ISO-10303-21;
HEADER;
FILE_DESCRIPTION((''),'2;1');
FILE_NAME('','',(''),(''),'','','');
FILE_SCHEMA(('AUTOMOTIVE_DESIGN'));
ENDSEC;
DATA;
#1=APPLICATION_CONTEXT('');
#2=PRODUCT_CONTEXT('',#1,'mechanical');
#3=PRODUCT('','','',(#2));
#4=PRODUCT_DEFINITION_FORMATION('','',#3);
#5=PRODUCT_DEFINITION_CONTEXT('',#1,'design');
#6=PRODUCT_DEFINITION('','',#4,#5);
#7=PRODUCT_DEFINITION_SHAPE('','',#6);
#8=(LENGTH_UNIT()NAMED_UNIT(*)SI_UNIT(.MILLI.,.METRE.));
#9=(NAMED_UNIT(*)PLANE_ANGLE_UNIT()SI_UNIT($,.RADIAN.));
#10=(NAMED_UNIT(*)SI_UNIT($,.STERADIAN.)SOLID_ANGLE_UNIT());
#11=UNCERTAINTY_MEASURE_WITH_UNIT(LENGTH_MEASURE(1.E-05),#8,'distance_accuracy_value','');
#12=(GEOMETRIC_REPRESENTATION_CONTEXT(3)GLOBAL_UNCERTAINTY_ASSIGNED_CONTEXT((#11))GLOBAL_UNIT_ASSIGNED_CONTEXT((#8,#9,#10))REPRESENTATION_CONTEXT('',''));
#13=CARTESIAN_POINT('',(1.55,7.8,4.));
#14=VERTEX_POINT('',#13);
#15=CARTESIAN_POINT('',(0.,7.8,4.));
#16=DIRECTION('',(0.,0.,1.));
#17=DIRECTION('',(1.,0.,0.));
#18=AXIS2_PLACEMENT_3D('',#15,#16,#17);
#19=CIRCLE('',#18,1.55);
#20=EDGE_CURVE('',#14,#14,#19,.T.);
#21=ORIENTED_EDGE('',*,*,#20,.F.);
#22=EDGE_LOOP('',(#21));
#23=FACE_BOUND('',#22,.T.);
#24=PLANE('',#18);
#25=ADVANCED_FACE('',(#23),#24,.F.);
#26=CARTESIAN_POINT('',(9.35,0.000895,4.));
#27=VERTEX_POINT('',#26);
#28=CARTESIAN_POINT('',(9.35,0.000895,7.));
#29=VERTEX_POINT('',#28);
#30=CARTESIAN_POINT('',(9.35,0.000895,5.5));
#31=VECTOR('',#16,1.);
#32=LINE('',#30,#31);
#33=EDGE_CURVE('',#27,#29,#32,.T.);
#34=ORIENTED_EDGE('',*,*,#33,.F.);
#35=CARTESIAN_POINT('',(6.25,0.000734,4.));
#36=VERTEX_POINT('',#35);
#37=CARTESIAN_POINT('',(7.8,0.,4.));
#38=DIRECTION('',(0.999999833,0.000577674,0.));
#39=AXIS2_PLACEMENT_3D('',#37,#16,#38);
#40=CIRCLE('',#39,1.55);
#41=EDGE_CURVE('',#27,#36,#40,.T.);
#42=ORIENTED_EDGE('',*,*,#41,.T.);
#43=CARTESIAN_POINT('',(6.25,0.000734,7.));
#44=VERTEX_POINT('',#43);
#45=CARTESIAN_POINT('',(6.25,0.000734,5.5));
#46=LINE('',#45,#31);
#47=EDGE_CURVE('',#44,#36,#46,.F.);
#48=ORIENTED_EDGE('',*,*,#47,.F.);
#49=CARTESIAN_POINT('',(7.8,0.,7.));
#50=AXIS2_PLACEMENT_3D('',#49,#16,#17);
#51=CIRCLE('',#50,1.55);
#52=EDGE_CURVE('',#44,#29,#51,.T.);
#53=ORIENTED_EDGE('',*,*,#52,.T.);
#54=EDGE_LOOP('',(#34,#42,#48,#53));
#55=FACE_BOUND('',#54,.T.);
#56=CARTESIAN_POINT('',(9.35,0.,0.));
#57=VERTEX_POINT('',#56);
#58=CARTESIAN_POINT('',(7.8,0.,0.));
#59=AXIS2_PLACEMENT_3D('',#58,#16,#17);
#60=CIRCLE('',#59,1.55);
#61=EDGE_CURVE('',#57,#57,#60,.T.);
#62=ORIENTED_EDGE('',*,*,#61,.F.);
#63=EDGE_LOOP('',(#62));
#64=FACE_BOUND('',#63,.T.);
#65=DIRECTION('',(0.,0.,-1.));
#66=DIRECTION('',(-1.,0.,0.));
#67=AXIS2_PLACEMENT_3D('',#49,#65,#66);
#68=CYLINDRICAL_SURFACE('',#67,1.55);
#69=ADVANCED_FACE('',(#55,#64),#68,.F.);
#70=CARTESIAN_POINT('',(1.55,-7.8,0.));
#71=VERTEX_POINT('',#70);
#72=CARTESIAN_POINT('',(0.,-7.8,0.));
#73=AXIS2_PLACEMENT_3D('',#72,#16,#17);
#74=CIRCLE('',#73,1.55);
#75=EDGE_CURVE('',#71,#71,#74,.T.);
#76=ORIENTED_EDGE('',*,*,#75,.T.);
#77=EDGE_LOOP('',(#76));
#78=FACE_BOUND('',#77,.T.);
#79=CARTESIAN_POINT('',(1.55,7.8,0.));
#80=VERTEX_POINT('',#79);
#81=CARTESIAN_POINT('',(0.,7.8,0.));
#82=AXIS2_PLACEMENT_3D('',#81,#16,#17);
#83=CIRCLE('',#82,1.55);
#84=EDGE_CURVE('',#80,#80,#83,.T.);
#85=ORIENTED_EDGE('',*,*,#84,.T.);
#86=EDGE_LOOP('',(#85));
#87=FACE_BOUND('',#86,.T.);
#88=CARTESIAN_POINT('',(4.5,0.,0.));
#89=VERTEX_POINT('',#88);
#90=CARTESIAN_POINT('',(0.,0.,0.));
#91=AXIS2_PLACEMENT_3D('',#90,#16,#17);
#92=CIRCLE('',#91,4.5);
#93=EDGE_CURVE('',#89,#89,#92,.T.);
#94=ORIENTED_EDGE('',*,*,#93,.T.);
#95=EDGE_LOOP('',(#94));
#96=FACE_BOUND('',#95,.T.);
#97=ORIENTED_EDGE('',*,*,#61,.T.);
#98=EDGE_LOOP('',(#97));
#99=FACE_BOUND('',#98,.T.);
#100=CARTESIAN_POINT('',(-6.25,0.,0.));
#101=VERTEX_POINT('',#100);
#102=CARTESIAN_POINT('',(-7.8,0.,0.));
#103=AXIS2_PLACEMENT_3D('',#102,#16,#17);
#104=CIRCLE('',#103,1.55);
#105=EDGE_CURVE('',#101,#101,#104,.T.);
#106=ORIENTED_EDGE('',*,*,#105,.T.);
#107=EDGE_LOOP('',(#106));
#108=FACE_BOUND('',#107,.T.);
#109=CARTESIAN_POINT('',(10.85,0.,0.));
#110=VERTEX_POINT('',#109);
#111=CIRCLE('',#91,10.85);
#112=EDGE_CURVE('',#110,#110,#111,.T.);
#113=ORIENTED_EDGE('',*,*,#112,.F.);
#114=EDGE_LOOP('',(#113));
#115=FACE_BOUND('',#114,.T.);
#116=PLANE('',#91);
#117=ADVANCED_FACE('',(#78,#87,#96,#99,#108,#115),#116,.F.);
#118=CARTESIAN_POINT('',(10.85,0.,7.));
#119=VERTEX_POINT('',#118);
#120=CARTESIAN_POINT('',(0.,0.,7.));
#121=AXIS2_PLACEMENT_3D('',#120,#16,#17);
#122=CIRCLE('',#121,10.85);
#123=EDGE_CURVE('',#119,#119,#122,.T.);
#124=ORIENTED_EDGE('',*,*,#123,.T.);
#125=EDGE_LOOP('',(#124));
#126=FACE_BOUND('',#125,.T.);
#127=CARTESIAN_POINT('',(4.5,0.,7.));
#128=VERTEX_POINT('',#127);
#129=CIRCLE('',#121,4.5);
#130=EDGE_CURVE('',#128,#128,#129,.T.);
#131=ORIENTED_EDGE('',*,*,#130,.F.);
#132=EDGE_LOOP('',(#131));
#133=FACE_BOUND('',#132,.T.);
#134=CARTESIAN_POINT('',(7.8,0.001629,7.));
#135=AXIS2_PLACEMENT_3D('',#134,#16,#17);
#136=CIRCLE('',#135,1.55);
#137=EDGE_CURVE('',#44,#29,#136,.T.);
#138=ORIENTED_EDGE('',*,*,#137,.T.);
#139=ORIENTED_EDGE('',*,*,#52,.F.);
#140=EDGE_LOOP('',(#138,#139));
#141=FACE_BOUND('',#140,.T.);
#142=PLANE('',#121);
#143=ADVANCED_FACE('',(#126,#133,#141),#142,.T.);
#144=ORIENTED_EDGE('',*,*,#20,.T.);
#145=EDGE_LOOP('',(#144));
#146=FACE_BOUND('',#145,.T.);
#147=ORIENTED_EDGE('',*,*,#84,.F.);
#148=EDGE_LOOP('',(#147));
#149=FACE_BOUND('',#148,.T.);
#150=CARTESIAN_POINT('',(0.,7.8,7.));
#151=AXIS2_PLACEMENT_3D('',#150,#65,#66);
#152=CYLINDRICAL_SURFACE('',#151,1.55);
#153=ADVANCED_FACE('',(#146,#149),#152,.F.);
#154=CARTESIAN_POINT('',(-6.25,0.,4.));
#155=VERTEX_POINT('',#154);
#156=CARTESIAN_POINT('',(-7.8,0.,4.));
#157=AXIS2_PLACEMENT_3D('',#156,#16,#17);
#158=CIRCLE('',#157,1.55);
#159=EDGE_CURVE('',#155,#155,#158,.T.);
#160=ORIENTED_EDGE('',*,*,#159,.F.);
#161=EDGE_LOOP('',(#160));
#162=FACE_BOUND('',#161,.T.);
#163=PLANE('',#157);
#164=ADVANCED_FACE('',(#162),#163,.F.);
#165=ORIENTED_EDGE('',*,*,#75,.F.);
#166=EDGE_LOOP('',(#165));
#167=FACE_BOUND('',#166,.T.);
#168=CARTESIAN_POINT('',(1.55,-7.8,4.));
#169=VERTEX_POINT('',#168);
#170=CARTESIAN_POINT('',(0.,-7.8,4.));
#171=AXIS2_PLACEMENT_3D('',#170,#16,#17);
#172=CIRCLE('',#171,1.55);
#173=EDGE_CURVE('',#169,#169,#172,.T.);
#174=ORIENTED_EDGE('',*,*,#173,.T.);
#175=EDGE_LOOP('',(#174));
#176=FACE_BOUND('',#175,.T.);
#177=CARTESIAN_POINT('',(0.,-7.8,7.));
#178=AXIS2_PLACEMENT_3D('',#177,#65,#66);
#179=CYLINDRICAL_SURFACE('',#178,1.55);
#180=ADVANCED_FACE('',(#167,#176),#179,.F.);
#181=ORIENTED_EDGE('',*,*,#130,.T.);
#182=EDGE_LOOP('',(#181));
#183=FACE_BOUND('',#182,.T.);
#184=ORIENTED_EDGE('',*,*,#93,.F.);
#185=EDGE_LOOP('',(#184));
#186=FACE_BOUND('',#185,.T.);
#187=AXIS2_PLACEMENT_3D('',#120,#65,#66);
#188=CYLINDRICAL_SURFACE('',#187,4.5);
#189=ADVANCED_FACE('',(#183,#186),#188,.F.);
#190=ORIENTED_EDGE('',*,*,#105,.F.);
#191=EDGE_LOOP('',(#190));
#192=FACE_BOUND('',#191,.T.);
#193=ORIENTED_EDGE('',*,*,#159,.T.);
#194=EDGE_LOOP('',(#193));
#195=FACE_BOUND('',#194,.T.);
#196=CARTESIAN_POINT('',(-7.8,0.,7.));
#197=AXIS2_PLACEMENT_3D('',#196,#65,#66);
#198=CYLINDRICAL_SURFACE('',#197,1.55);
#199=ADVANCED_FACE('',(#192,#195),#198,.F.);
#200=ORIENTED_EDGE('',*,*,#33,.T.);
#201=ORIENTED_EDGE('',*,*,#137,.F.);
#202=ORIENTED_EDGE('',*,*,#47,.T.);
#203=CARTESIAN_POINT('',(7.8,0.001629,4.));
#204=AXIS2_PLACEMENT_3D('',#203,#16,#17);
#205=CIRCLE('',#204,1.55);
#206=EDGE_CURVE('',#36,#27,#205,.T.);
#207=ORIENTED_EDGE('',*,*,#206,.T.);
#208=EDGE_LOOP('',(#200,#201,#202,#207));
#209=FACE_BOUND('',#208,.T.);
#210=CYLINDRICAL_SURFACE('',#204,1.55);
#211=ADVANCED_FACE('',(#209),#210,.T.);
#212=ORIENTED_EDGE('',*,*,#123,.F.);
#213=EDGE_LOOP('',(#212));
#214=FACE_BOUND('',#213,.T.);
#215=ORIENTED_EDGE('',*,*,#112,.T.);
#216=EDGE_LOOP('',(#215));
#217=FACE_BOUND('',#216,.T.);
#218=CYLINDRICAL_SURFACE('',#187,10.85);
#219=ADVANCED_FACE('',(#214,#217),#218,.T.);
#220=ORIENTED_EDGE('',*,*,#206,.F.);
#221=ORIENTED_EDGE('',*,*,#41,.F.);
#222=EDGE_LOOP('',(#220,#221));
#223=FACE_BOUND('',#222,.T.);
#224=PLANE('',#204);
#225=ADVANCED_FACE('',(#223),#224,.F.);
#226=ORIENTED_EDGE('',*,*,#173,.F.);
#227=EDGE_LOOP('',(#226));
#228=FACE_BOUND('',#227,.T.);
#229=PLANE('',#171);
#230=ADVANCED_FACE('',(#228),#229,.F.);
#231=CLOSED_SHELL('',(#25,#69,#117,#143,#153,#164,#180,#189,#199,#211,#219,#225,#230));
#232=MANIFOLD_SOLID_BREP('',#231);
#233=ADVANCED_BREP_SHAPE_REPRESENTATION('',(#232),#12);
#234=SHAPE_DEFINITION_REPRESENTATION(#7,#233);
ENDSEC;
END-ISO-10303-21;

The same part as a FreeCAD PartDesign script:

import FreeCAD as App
import Part
import Sketcher
Q = App.Units.Quantity

doc = App.newDocument("Part")
body = doc.addObject("PartDesign::Body", "Body")

# Sketch on XY plane
sketch1 = body.newObject("Sketcher::SketchObject", "Sketch")
sketch1.AttachmentSupport = (doc.getObject("XY_Plane"), [""])
sketch1.MapMode = "FlatFace"
sketch1.addGeometry(Part.Circle(App.Vector(0, 0, 0), App.Vector(0, 0, 1), 10.85), False)
sketch1.addGeometry(Part.Circle(App.Vector(0, -7.8, 0), App.Vector(0, 0, 1), 1.55), False)
sketch1.addGeometry(Part.Circle(App.Vector(-7.8, 0, 0), App.Vector(0, 0, 1), 1.55), False)
sketch1.addGeometry(Part.Circle(App.Vector(0, 0, 0), App.Vector(0, 0, 1), 4.5), False)
sketch1.addGeometry(Part.Circle(App.Vector(0, 7.8, 0), App.Vector(0, 0, 1), 1.55), False)
sketch1.addGeometry(Part.Circle(App.Vector(7.8, 0, 0), App.Vector(0, 0, 1), 1.55), False)
sketch1.addConstraint(Sketcher.Constraint("Coincident", 0, 3, -1, 1))
sketch1.addConstraint(Sketcher.Constraint("Coincident", 3, 3, -1, 1))
sketch1.addConstraint(Sketcher.Constraint("Equal", 1, 2))
sketch1.addConstraint(Sketcher.Constraint("Equal", 2, 4))
sketch1.addConstraint(Sketcher.Constraint("Equal", 4, 5))
sketch1.addConstraint(Sketcher.Constraint("Symmetric", 1, 3, 4, 3, -1, 1))
sketch1.addConstraint(Sketcher.Constraint("Symmetric", 2, 3, 5, 3, -1, 1))
sketch1.addConstraint(Sketcher.Constraint("PointOnObject", 1, 3, -2))
sketch1.addConstraint(Sketcher.Constraint("PointOnObject", 2, 3, -1))
sketch1.addConstraint(Sketcher.Constraint("Diameter", 3, Q("9 mm")))
sketch1.addConstraint(Sketcher.Constraint("Diameter", 0, Q("21.7 mm")))
sketch1.addConstraint(Sketcher.Constraint("Diameter", 1, Q("3.1 mm")))
sketch1.addConstraint(Sketcher.Constraint("DistanceY", 1, 3, -1, 1, Q("7.8 mm")))
sketch1.addConstraint(Sketcher.Constraint("DistanceX", 2, 3, -1, 1, Q("7.8 mm")))
pad1 = body.newObject("PartDesign::Pad", "Pad")
pad1.Profile = sketch1
pad1.Length = 7

# Sketch on XY plane
sketch2 = body.newObject("Sketcher::SketchObject", "Sketch001")
sketch2.AttachmentSupport = (doc.getObject("XY_Plane"), [""])
sketch2.MapMode = "FlatFace"
sketch2.AttachmentOffset = App.Placement(App.Vector(0, 0, 7), App.Rotation())
sketch2.addGeometry(Part.Circle(App.Vector(0, 7.8, 0), App.Vector(0, 0, 1), 1.55), False)
sketch2.addGeometry(Part.Circle(App.Vector(-7.8, 0, 0), App.Vector(0, 0, 1), 1.55), False)
sketch2.addGeometry(Part.Circle(App.Vector(0, -7.8, 0), App.Vector(0, 0, 1), 1.55), False)
sketch2.addGeometry(Part.Circle(App.Vector(7.8, 0.001629, 0), App.Vector(0, 0, 1), 1.55), False)
sketch2.addConstraint(Sketcher.Constraint("Equal", 0, 1))
sketch2.addConstraint(Sketcher.Constraint("Equal", 1, 2))
sketch2.addConstraint(Sketcher.Constraint("Equal", 2, 3))
sketch2.addConstraint(Sketcher.Constraint("Symmetric", 0, 3, 2, 3, -1, 1))
sketch2.addConstraint(Sketcher.Constraint("PointOnObject", 0, 3, -2))
sketch2.addConstraint(Sketcher.Constraint("PointOnObject", 1, 3, -1))
sketch2.addConstraint(Sketcher.Constraint("Diameter", 0, Q("3.1 mm")))
sketch2.addConstraint(Sketcher.Constraint("DistanceY", -1, 1, 0, 3, Q("7.8 mm")))
sketch2.addConstraint(Sketcher.Constraint("DistanceX", 1, 3, -1, 1, Q("7.8 mm")))
sketch2.addConstraint(Sketcher.Constraint("DistanceX", -1, 1, 3, 3, Q("7.8 mm")))
sketch2.addConstraint(Sketcher.Constraint("DistanceY", -1, 1, 3, 3, Q("0.001629 mm")))
pad2 = body.newObject("PartDesign::Pad", "Pad001")
pad2.Profile = sketch2
pad2.Length = 3
pad2.Reversed = True

doc.recompute()
